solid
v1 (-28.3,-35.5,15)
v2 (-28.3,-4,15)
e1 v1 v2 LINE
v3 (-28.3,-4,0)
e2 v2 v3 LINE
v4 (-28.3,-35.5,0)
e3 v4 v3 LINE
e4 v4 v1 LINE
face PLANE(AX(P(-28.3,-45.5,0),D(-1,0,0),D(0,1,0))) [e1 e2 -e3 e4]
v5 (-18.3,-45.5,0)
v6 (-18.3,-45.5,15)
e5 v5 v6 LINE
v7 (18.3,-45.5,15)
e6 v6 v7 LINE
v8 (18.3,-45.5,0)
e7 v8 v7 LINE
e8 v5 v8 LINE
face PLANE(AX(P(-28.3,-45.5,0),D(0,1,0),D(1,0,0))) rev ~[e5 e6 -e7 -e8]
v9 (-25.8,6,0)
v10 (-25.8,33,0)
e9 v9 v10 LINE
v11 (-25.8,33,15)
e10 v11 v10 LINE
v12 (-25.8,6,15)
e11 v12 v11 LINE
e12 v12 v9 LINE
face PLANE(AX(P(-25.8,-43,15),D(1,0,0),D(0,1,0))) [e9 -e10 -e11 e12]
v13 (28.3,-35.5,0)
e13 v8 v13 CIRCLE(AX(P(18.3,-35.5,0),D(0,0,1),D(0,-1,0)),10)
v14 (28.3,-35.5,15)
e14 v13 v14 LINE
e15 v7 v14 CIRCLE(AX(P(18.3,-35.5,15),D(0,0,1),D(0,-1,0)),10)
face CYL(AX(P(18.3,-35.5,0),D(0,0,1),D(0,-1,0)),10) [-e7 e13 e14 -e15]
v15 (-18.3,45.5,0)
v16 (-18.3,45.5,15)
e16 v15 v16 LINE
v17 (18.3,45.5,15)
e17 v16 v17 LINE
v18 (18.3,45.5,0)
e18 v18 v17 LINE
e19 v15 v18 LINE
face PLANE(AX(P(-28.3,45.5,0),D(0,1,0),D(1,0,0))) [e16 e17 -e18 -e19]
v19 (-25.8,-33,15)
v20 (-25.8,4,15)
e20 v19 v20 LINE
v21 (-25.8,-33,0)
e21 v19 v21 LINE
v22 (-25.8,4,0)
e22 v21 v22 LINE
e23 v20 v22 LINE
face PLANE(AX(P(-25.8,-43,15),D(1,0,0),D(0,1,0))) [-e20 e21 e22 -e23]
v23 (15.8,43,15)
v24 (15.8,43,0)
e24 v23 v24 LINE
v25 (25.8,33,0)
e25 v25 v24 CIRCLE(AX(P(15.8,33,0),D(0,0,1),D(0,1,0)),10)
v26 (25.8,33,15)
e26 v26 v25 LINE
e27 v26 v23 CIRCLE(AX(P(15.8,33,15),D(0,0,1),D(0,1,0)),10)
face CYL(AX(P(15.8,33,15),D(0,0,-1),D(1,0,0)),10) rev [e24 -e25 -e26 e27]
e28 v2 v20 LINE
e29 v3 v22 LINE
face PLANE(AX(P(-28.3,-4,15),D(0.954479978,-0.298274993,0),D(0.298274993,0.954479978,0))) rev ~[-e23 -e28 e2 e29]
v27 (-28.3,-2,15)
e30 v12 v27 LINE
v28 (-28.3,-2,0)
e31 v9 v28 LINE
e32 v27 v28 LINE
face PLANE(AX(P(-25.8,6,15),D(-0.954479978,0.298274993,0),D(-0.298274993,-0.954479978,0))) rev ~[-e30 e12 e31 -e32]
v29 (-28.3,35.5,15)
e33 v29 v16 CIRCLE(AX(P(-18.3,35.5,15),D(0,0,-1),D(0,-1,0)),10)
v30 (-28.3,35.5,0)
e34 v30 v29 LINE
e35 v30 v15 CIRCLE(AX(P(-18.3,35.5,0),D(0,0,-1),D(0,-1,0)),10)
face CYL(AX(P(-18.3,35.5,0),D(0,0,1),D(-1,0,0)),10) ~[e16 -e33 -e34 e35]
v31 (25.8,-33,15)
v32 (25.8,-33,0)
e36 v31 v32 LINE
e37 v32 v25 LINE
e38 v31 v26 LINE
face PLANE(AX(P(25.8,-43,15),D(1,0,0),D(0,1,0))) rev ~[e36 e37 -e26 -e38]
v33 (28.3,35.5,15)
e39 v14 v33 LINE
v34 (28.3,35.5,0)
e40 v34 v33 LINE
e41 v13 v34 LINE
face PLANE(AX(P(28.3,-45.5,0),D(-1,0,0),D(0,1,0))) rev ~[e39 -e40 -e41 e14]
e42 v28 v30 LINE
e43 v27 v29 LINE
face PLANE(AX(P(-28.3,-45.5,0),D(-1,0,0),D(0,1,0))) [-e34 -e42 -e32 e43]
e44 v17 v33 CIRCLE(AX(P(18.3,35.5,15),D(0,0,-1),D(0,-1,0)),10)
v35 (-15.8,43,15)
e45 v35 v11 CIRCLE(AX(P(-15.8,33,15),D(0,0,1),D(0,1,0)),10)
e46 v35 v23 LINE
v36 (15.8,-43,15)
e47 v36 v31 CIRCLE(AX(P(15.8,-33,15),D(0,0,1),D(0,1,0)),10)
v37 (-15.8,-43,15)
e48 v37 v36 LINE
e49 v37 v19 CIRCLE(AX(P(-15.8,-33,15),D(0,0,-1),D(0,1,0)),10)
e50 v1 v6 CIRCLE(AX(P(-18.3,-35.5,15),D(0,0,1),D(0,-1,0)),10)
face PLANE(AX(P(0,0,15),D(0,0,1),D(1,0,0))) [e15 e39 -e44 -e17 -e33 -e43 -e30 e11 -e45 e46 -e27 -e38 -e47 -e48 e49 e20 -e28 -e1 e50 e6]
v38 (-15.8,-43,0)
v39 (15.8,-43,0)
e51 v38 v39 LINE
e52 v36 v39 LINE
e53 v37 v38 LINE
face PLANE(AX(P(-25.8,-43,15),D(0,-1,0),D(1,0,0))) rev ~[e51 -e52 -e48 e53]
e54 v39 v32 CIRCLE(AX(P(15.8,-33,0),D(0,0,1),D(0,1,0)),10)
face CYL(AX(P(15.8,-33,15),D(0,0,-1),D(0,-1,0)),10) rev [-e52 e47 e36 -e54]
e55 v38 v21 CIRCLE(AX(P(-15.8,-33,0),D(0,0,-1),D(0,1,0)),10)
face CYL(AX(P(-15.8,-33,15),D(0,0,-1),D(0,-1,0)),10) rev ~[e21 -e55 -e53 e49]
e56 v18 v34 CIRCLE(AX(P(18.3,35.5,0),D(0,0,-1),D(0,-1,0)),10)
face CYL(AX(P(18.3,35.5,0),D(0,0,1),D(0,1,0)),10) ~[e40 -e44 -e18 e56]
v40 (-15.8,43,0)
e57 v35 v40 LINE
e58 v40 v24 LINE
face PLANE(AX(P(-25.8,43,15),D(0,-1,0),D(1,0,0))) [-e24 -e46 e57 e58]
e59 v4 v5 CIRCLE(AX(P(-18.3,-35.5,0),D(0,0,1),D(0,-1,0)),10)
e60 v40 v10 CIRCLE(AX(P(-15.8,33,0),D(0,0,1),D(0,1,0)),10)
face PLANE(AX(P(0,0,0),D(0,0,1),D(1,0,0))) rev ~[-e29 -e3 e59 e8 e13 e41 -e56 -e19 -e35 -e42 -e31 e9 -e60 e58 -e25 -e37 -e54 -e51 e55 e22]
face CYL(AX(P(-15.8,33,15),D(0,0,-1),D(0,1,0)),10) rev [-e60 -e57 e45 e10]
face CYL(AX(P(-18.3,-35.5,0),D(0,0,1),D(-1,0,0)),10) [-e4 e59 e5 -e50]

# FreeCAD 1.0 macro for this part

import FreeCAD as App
import Part
import Sketcher
Q = App.Units.Quantity


def edges_at(feature, points):
    """Names of the edges that pass closest to the given points."""
    edges = feature.Shape.Edges
    near = lambda p: min(range(len(edges)), key=lambda i: edges[i].distToShape(Part.Vertex(*p))[0])
    return sorted({f"Edge{near(p) + 1}" for p in points})

doc = App.newDocument("Part")
body = doc.addObject("PartDesign::Body", "Body")

# Sketch on XY plane
sketch1 = body.newObject("Sketcher::SketchObject", "Sketch")
sketch1.AttachmentSupport = (doc.getObject("XY_Plane"), [""])
sketch1.MapMode = "FlatFace"
sketch1.addGeometry(Part.LineSegment(App.Vector(-28, 46, 0), App.Vector(-28, -46, 0)), False)
sketch1.addGeometry(Part.LineSegment(App.Vector(-28, -46, 0), App.Vector(28, -46, 0)), False)
sketch1.addGeometry(Part.LineSegment(App.Vector(28, -46, 0), App.Vector(28, 46, 0)), False)
sketch1.addGeometry(Part.LineSegment(App.Vector(28, 46, 0), App.Vector(-28, 46, 0)), False)
sketch1.addConstraint(Sketcher.Constraint("Coincident", 0, 2, 1, 1))
sketch1.addConstraint(Sketcher.Constraint("Coincident", 1, 2, 2, 1))
sketch1.addConstraint(Sketcher.Constraint("Coincident", 2, 2, 3, 1))
sketch1.addConstraint(Sketcher.Constraint("Coincident", 3, 2, 0, 1))
sketch1.addConstraint(Sketcher.Constraint("Vertical", 0))
sketch1.addConstraint(Sketcher.Constraint("Horizontal", 1))
sketch1.addConstraint(Sketcher.Constraint("Vertical", 2))
sketch1.addConstraint(Sketcher.Constraint("Horizontal", 3))
sketch1.addConstraint(Sketcher.Constraint("Symmetric", 0, 2, 2, 2, -1, 1))
sketch1.addConstraint(Sketcher.Constraint("DistanceY", 0, 2, 0, 1, Q("91 mm")))
sketch1.addConstraint(Sketcher.Constraint("DistanceX", 1, 1, 1, 2, Q("56.6 mm")))
pad1 = body.newObject("PartDesign::Pad", "Pad")
pad1.Profile = sketch1
pad1.Length = 15

# Sketch on XY plane
sketch2 = body.newObject("Sketcher::SketchObject", "Sketch001")
sketch2.AttachmentSupport = (doc.getObject("XY_Plane"), [""])
sketch2.MapMode = "FlatFace"
sketch2.AttachmentOffset = App.Placement(App.Vector(0, 0, 15), App.Rotation())
sketch2.addGeometry(Part.LineSegment(App.Vector(-26, 43, 0), App.Vector(-26, -43, 0)), False)
sketch2.addGeometry(Part.LineSegment(App.Vector(-26, -43, 0), App.Vector(26, -43, 0)), False)
sketch2.addGeometry(Part.LineSegment(App.Vector(26, -43, 0), App.Vector(26, 43, 0)), False)
sketch2.addGeometry(Part.LineSegment(App.Vector(26, 43, 0), App.Vector(-26, 43, 0)), False)
sketch2.addConstraint(Sketcher.Constraint("Coincident", 0, 2, 1, 1))
sketch2.addConstraint(Sketcher.Constraint("Coincident", 1, 2, 2, 1))
sketch2.addConstraint(Sketcher.Constraint("Coincident", 2, 2, 3, 1))
sketch2.addConstraint(Sketcher.Constraint("Coincident", 3, 2, 0, 1))
sketch2.addConstraint(Sketcher.Constraint("Vertical", 0))
sketch2.addConstraint(Sketcher.Constraint("Horizontal", 1))
sketch2.addConstraint(Sketcher.Constraint("Vertical", 2))
sketch2.addConstraint(Sketcher.Constraint("Horizontal", 3))
sketch2.addConstraint(Sketcher.Constraint("Symmetric", 0, 2, 2, 2, -1, 1))
sketch2.addConstraint(Sketcher.Constraint("DistanceY", 0, 2, 0, 1, Q("86 mm")))
sketch2.addConstraint(Sketcher.Constraint("DistanceX", 1, 1, 1, 2, Q("51.6 mm")))
pocket1 = body.newObject("PartDesign::Pocket", "Pocket")
pocket1.Profile = sketch2
pocket1.Length = 25
doc.recompute()

fillet = body.newObject("PartDesign::Fillet", "Fillet")
fillet.Base = (pocket1, edges_at(pocket1, [
    (28.3, -45.5, 7.5),
    (28.3, 45.5, 7.5),
    (-28.3, -45.5, 7.5),
    (-28.3, 45.5, 7.5),
    (25.8, 43, 7.5),
    (-25.8, 43, 7.5),
    (-25.8, -43, 7.5),
    (25.8, -43, 7.5),
]))
fillet.Radius = 10

# Sketch on XY plane
sketch3 = body.newObject("Sketcher::SketchObject", "Sketch002")
sketch3.AttachmentSupport = (doc.getObject("XY_Plane"), [""])
sketch3.MapMode = "FlatFace"
sketch3.AttachmentOffset = App.Placement(App.Vector(0, 0, 15), App.Rotation())
sketch3.addGeometry(Part.LineSegment(App.Vector(-28.3, -2, 0), App.Vector(-28.3, -4, 0)), False)
sketch3.addGeometry(Part.LineSegment(App.Vector(-28.3, -4, 0), App.Vector(-25.8, 4, 0)), False)
sketch3.addGeometry(Part.LineSegment(App.Vector(-25.8, 4, 0), App.Vector(-25.8, 6, 0)), False)
sketch3.addGeometry(Part.LineSegment(App.Vector(-25.8, 6, 0), App.Vector(-28.3, -2, 0)), False)
sketch3.addConstraint(Sketcher.Constraint("Coincident", 0, 2, 1, 1))
sketch3.addConstraint(Sketcher.Constraint("Coincident", 1, 2, 2, 1))
sketch3.addConstraint(Sketcher.Constraint("Coincident", 2, 2, 3, 1))
sketch3.addConstraint(Sketcher.Constraint("Coincident", 3, 2, 0, 1))
sketch3.addConstraint(Sketcher.Constraint("Vertical", 0))
sketch3.addConstraint(Sketcher.Constraint("Vertical", 2))
sketch3.addConstraint(Sketcher.Constraint("Parallel", 1, 3))
sketch3.addConstraint(Sketcher.Constraint("DistanceY", 0, 2, 0, 1, Q("2 mm")))
sketch3.addConstraint(Sketcher.Constraint("DistanceY", 0, 2, -1, 1, Q("4 mm")))
sketch3.addConstraint(Sketcher.Constraint("DistanceY", -1, 1, 1, 2, Q("4 mm")))
sketch3.addConstraint(Sketcher.Constraint("DistanceX", 0, 2, -1, 1, Q("28.3 mm")))
sketch3.addConstraint(Sketcher.Constraint("DistanceX", 1, 2, -1, 1, Q("25.8 mm")))
pocket2 = body.newObject("PartDesign::Pocket", "Pocket001")
pocket2.Profile = sketch3
pocket2.Length = 25

doc.recompute()
